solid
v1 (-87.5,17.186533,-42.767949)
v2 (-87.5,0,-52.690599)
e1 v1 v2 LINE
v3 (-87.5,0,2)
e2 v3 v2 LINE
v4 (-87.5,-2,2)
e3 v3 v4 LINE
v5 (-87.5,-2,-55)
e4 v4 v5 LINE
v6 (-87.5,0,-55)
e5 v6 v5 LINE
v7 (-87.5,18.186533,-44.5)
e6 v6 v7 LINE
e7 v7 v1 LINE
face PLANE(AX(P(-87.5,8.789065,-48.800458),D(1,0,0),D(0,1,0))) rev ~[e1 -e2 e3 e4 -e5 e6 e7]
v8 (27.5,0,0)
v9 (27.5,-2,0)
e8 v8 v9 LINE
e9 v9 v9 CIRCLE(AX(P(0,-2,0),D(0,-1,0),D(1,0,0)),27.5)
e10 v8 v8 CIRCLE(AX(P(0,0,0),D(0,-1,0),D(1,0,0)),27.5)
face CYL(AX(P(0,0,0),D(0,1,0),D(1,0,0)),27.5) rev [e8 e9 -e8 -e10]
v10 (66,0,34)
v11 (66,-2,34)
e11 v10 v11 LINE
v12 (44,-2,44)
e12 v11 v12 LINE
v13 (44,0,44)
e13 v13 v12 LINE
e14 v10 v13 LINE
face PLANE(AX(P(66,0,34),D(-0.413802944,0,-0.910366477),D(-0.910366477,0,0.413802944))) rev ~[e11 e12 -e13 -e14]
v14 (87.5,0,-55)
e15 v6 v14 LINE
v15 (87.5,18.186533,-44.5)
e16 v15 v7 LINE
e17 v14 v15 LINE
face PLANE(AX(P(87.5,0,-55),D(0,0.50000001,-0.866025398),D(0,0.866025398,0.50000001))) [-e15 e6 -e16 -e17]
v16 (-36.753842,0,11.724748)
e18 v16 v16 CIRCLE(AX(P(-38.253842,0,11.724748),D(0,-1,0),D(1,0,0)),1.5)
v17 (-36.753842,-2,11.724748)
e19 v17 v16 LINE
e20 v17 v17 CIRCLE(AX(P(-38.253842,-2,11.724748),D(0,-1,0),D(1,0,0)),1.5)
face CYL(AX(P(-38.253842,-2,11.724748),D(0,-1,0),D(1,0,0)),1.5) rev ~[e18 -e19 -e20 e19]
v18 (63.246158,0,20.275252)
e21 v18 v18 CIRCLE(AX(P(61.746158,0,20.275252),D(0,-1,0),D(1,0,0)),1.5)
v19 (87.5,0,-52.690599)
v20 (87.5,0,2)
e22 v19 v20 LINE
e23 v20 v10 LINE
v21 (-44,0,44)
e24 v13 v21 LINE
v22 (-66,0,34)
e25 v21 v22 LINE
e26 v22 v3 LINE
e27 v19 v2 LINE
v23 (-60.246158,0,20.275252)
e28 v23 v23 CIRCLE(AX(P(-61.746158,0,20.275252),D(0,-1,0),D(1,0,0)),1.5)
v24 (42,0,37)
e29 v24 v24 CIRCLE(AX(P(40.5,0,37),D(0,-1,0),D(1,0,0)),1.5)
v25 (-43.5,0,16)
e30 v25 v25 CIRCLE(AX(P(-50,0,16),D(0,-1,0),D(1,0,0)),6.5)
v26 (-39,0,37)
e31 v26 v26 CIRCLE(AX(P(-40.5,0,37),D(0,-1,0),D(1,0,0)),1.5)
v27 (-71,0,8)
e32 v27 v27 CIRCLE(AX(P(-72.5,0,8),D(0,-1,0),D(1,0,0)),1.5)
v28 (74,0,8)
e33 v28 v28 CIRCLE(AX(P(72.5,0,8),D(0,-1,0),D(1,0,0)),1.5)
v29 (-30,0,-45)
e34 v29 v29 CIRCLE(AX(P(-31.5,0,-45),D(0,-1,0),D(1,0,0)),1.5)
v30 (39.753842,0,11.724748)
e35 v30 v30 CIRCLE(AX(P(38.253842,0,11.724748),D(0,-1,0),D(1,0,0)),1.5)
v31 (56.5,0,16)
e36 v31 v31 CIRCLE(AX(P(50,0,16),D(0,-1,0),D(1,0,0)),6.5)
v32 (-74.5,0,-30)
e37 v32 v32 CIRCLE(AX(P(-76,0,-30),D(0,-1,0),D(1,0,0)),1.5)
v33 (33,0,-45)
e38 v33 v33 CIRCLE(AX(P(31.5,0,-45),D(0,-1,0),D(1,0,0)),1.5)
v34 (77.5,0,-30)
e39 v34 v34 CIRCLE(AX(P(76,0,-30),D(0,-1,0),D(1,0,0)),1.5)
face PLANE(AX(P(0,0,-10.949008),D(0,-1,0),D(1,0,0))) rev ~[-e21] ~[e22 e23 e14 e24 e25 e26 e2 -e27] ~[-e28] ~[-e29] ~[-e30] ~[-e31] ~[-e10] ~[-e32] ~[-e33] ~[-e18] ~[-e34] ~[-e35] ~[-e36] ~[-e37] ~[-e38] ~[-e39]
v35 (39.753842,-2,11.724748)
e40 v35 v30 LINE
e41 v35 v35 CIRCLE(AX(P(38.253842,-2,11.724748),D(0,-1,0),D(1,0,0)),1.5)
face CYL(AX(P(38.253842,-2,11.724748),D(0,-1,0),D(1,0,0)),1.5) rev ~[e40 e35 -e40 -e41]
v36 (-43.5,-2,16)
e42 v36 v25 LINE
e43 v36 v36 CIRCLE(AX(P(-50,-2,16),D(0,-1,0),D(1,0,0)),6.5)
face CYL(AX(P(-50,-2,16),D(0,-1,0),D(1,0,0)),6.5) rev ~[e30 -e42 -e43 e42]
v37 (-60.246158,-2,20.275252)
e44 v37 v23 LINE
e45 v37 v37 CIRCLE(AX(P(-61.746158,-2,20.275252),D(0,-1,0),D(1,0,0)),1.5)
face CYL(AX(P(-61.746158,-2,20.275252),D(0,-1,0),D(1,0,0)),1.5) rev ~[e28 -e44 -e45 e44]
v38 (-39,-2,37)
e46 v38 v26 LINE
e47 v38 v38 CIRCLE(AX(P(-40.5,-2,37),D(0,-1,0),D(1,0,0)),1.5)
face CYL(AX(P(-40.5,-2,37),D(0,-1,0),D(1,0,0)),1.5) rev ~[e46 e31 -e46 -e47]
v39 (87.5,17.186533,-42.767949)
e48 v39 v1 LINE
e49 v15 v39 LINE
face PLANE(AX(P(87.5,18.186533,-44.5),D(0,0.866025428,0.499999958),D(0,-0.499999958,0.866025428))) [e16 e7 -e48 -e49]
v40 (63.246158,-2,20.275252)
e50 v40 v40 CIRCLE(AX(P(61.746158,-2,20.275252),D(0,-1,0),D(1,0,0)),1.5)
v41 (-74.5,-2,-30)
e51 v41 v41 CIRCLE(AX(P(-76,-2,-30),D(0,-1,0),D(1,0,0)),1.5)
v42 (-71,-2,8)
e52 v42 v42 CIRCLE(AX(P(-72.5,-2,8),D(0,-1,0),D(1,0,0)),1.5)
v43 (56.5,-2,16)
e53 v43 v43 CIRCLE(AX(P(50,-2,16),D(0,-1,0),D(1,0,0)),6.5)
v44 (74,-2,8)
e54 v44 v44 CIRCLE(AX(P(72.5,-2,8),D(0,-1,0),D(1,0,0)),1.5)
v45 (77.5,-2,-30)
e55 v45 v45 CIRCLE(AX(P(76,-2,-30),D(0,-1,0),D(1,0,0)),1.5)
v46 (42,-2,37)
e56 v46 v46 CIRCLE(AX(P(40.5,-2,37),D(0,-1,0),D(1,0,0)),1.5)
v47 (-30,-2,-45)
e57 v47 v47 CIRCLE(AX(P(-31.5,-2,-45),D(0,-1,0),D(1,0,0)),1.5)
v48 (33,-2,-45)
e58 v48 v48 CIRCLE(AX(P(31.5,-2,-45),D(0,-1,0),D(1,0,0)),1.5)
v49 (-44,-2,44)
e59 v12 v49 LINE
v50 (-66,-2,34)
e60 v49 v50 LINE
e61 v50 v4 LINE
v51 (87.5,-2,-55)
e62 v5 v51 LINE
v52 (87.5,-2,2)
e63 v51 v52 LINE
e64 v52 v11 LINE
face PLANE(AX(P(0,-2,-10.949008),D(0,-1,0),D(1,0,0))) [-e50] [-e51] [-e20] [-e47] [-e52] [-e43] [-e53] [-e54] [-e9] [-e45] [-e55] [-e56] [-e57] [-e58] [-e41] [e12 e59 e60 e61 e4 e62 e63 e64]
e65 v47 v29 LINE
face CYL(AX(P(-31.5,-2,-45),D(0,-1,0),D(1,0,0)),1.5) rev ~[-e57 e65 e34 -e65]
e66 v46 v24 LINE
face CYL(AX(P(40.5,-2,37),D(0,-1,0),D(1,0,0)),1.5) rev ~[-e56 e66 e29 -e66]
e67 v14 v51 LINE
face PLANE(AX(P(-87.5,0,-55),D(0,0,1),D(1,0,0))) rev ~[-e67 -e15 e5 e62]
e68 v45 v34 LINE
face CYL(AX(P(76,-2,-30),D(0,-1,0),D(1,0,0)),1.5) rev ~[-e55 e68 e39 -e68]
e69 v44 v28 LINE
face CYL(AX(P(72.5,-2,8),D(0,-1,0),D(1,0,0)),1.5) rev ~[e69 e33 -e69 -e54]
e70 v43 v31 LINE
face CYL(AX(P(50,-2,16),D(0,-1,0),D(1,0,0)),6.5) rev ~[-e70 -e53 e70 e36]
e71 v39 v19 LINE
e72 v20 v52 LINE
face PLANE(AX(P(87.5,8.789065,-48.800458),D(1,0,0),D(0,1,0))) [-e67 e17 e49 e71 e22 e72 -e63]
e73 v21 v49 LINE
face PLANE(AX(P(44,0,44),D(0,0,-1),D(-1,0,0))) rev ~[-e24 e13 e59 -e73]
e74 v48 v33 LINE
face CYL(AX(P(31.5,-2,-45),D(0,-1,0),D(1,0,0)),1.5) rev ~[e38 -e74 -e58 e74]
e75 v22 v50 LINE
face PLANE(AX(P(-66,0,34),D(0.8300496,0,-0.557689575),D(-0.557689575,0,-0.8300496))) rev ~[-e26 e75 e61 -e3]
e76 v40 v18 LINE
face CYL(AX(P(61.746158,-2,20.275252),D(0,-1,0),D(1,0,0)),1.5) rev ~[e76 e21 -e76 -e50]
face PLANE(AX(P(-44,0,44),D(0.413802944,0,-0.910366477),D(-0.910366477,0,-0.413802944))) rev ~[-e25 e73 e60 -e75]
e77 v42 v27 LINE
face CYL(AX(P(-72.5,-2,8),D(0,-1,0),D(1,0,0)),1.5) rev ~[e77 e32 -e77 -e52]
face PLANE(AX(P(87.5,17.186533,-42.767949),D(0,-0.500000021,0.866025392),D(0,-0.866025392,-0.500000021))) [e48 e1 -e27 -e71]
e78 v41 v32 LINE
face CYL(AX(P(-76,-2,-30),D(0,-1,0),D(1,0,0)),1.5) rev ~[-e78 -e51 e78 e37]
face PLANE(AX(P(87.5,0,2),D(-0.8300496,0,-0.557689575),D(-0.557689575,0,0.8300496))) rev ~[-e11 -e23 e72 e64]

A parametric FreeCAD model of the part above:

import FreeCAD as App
import Part
import Sketcher
Q = App.Units.Quantity

doc = App.newDocument("Part")
body = doc.addObject("PartDesign::Body", "Body")

sketch1 = body.newObject("Sketcher::SketchObject", "Sketch")
sketch1.AttachmentSupport = (doc.getObject("XZ_Plane"), [""])
sketch1.MapMode = "FlatFace"
sketch1.addGeometry(Part.LineSegment(App.Vector(44, 44, 0), App.Vector(-44, 44, 0)), False)
sketch1.addGeometry(Part.LineSegment(App.Vector(-44, 44, 0), App.Vector(-66, 34, 0)), False)
sketch1.addGeometry(Part.LineSegment(App.Vector(-66, 34, 0), App.Vector(-88, 2, 0)), False)
sketch1.addGeometry(Part.LineSegment(App.Vector(-88, 2, 0), App.Vector(-88, -55, 0)), False)
sketch1.addGeometry(Part.LineSegment(App.Vector(-88, -55, 0), App.Vector(88, -55, 0)), False)
sketch1.addGeometry(Part.LineSegment(App.Vector(88, -55, 0), App.Vector(88, 2, 0)), False)
sketch1.addGeometry(Part.LineSegment(App.Vector(88, 2, 0), App.Vector(66, 34, 0)), False)
sketch1.addGeometry(Part.LineSegment(App.Vector(66, 34, 0), App.Vector(44, 44, 0)), False)
sketch1.addGeometry(Part.Circle(App.Vector(0, 0, 0), App.Vector(0, 0, 1), 28), False)
sketch1.addConstraint(Sketcher.Constraint("Coincident", 0, 2, 1, 1))
sketch1.addConstraint(Sketcher.Constraint("Coincident", 1, 2, 2, 1))
sketch1.addConstraint(Sketcher.Constraint("Coincident", 2, 2, 3, 1))
sketch1.addConstraint(Sketcher.Constraint("Coincident", 3, 2, 4, 1))
sketch1.addConstraint(Sketcher.Constraint("Coincident", 4, 2, 5, 1))
sketch1.addConstraint(Sketcher.Constraint("Coincident", 5, 2, 6, 1))
sketch1.addConstraint(Sketcher.Constraint("Coincident", 6, 2, 7, 1))
sketch1.addConstraint(Sketcher.Constraint("Coincident", 7, 2, 0, 1))
sketch1.addConstraint(Sketcher.Constraint("Horizontal", 0))
sketch1.addConstraint(Sketcher.Constraint("Vertical", 3))
sketch1.addConstraint(Sketcher.Constraint("Horizontal", 4))
sketch1.addConstraint(Sketcher.Constraint("Vertical", 5))
sketch1.addConstraint(Sketcher.Constraint("Coincident", 8, 3, -1, 1))
sketch1.addConstraint(Sketcher.Constraint("Symmetric", 2, 2, 5, 2, -2))
sketch1.addConstraint(Sketcher.Constraint("Symmetric", 1, 2, 6, 2, -2))
sketch1.addConstraint(Sketcher.Constraint("Equal", 1, 7))
sketch1.addConstraint(Sketcher.Constraint("Diameter", 8, 55.0))
sketch1.addConstraint(Sketcher.Constraint("DistanceX", 0, 2, 0, 1, 88.0))
sketch1.addConstraint(Sketcher.Constraint("DistanceX", 4, 1, 4, 2, 175.0))
sketch1.addConstraint(Sketcher.Constraint("DistanceY", 3, 2, 3, 1, 57.0))
sketch1.addConstraint(Sketcher.Constraint("DistanceY", -1, 1, 0, 2, 44.0))
sketch1.addConstraint(Sketcher.Constraint("DistanceX", 1, 2, -1, 1, 66.0))
sketch1.addConstraint(Sketcher.Constraint("DistanceY", -1, 1, 1, 2, 34.0))
sketch1.addConstraint(Sketcher.Constraint("DistanceY", -1, 1, 2, 2, 2.0))
pad1 = body.newObject("PartDesign::Pad", "Pad")
pad1.Profile = sketch1
pad1.Length = 2

sketch2 = body.newObject("Sketcher::SketchObject", "Sketch001")
sketch2.AttachmentSupport = (doc.getObject("XZ_Plane"), [""])
sketch2.MapMode = "FlatFace"
sketch2.AttachmentOffset = App.Placement(App.Vector(0, 0, 2), App.Rotation())
sketch2.addGeometry(Part.Circle(App.Vector(50, 16, 0), App.Vector(0, 0, 1), 6.5), False)
sketch2.addGeometry(Part.Circle(App.Vector(61.7, 20.3, 0), App.Vector(0, 0, 1), 1.5), False)
sketch2.addGeometry(Part.Circle(App.Vector(38.3, 11.7, 0), App.Vector(0, 0, 1), 1.5), False)
sketch2.addGeometry(Part.Circle(App.Vector(-38.3, 11.7, 0), App.Vector(0, 0, 1), 1.5), False)
sketch2.addGeometry(Part.Circle(App.Vector(-61.7, 20.3, 0), App.Vector(0, 0, 1), 1.5), False)
sketch2.addGeometry(Part.Circle(App.Vector(-50, 16, 0), App.Vector(0, 0, 1), 6.5), False)
sketch2.addConstraint(Sketcher.Constraint("Equal", 1, 2))
sketch2.addConstraint(Sketcher.Constraint("Equal", 2, 3))
sketch2.addConstraint(Sketcher.Constraint("Equal", 3, 4))
sketch2.addConstraint(Sketcher.Constraint("Equal", 0, 5))
sketch2.addConstraint(Sketcher.Constraint("Symmetric", 2, 3, 3, 3, -2))
sketch2.addConstraint(Sketcher.Constraint("Symmetric", 1, 3, 4, 3, -2))
sketch2.addConstraint(Sketcher.Constraint("Symmetric", 0, 3, 5, 3, -2))
sketch2.addConstraint(Sketcher.Constraint("Diameter", 0, 13.0))
sketch2.addConstraint(Sketcher.Constraint("Diameter", 1, 3.0))
sketch2.addConstraint(Sketcher.Constraint("DistanceX", -1, 1, 0, 3, 50.0))
sketch2.addConstraint(Sketcher.Constraint("DistanceY", -1, 1, 0, 3, 16.0))
sketch2.addConstraint(Sketcher.Constraint("DistanceX", 3, 3, 1, 3, 100.0))
sketch2.addConstraint(Sketcher.Constraint("DistanceY", -1, 1, 1, 3, 20.275252))
sketch2.addConstraint(Sketcher.Constraint("DistanceX", 0, 3, 1, 3, 11.746158))
sketch2.addConstraint(Sketcher.Constraint("DistanceY", -1, 1, 2, 3, 11.724748))
pocket1 = body.newObject("PartDesign::Pocket", "Pocket")
pocket1.Profile = sketch2
pocket1.Type = "ThroughAll"

sketch3 = body.newObject("Sketcher::SketchObject", "Sketch002")
sketch3.AttachmentSupport = (doc.getObject("XZ_Plane"), [""])
sketch3.MapMode = "FlatFace"
sketch3.AttachmentOffset = App.Placement(App.Vector(0, 0, 2), App.Rotation())
sketch3.addGeometry(Part.Circle(App.Vector(-31.5, -45, 0), App.Vector(0, 0, 1), 1.5), False)
sketch3.addGeometry(Part.Circle(App.Vector(31.5, -45, 0), App.Vector(0, 0, 1), 1.5), False)
sketch3.addGeometry(Part.Circle(App.Vector(76, -30, 0), App.Vector(0, 0, 1), 1.5), False)
sketch3.addGeometry(Part.Circle(App.Vector(72.5, 8, 0), App.Vector(0, 0, 1), 1.5), False)
sketch3.addGeometry(Part.Circle(App.Vector(40.5, 37, 0), App.Vector(0, 0, 1), 1.5), False)
sketch3.addGeometry(Part.Circle(App.Vector(-40.5, 37, 0), App.Vector(0, 0, 1), 1.5), False)
sketch3.addGeometry(Part.Circle(App.Vector(-76, -30, 0), App.Vector(0, 0, 1), 1.5), False)
sketch3.addGeometry(Part.Circle(App.Vector(-72.5, 8, 0), App.Vector(0, 0, 1), 1.5), False)
sketch3.addConstraint(Sketcher.Constraint("Equal", 0, 1))
sketch3.addConstraint(Sketcher.Constraint("Equal", 1, 2))
sketch3.addConstraint(Sketcher.Constraint("Equal", 2, 3))
sketch3.addConstraint(Sketcher.Constraint("Equal", 3, 4))
sketch3.addConstraint(Sketcher.Constraint("Equal", 4, 5))
sketch3.addConstraint(Sketcher.Constraint("Equal", 5, 6))
sketch3.addConstraint(Sketcher.Constraint("Equal", 6, 7))
sketch3.addConstraint(Sketcher.Constraint("Symmetric", 0, 3, 1, 3, -2))
sketch3.addConstraint(Sketcher.Constraint("Symmetric", 4, 3, 5, 3, -2))
sketch3.addConstraint(Sketcher.Constraint("Symmetric", 2, 3, 6, 3, -2))
sketch3.addConstraint(Sketcher.Constraint("Symmetric", 3, 3, 7, 3, -2))
sketch3.addConstraint(Sketcher.Constraint("Diameter", 0, 3.0))
sketch3.addConstraint(Sketcher.Constraint("DistanceY", 0, 3, -1, 1, 45.0))
sketch3.addConstraint(Sketcher.Constraint("DistanceX", -1, 1, 2, 3, 76.0))
sketch3.addConstraint(Sketcher.Constraint("DistanceY", 2, 3, -1, 1, 30.0))
sketch3.addConstraint(Sketcher.Constraint("DistanceY", -1, 1, 3, 3, 8.0))
sketch3.addConstraint(Sketcher.Constraint("DistanceY", -1, 1, 4, 3, 37.0))
sketch3.addConstraint(Sketcher.Constraint("DistanceX", 0, 3, 1, 3, 63.0))
sketch3.addConstraint(Sketcher.Constraint("DistanceX", 1, 3, 3, 3, 41.0))
sketch3.addConstraint(Sketcher.Constraint("DistanceX", 4, 3, 3, 3, 32.0))
pocket2 = body.newObject("PartDesign::Pocket", "Pocket001")
pocket2.Profile = sketch3
pocket2.Type = "ThroughAll"

sketch4 = body.newObject("Sketcher::SketchObject", "Sketch003")
sketch4.AttachmentSupport = (doc.getObject("YZ_Plane"), [""])
sketch4.MapMode = "FlatFace"
sketch4.AttachmentOffset = App.Placement(App.Vector(0, 0, 87.5), App.Rotation())
sketch4.addGeometry(Part.LineSegment(App.Vector(0, -52.7, 0), App.Vector(0, -55, 0)), False)
sketch4.addGeometry(Part.LineSegment(App.Vector(0, -55, 0), App.Vector(18.2, -44.5, 0)), False)
sketch4.addGeometry(Part.LineSegment(App.Vector(18.2, -44.5, 0), App.Vector(17.2, -42.8, 0)), False)
sketch4.addGeometry(Part.LineSegment(App.Vector(17.2, -42.8, 0), App.Vector(0, -52.7, 0)), False)
sketch4.addConstraint(Sketcher.Constraint("Coincident", 0, 2, 1, 1))
sketch4.addConstraint(Sketcher.Constraint("Coincident", 1, 2, 2, 1))
sketch4.addConstraint(Sketcher.Constraint("Coincident", 2, 2, 3, 1))
sketch4.addConstraint(Sketcher.Constraint("Coincident", 3, 2, 0, 1))
sketch4.addConstraint(Sketcher.Constraint("Vertical", 0))
sketch4.addConstraint(Sketcher.Constraint("PointOnObject", 0, 2, -2))
sketch4.addConstraint(Sketcher.Constraint("Perpendicular", 1, 2))
sketch4.addConstraint(Sketcher.Constraint("Perpendicular", 2, 3))
sketch4.addConstraint(Sketcher.Constraint("Angle", 1, Q("30.000001 deg")))
sketch4.addConstraint(Sketcher.Constraint("Distance", 1, 21.0))
sketch4.addConstraint(Sketcher.Constraint("Distance", 2, 2.0))
sketch4.addConstraint(Sketcher.Constraint("DistanceY", 0, 2, -1, 1, 55.0))
pad2 = body.newObject("PartDesign::Pad", "Pad001")
pad2.Profile = sketch4
pad2.Length = 175
pad2.Reversed = True

doc.recompute()
